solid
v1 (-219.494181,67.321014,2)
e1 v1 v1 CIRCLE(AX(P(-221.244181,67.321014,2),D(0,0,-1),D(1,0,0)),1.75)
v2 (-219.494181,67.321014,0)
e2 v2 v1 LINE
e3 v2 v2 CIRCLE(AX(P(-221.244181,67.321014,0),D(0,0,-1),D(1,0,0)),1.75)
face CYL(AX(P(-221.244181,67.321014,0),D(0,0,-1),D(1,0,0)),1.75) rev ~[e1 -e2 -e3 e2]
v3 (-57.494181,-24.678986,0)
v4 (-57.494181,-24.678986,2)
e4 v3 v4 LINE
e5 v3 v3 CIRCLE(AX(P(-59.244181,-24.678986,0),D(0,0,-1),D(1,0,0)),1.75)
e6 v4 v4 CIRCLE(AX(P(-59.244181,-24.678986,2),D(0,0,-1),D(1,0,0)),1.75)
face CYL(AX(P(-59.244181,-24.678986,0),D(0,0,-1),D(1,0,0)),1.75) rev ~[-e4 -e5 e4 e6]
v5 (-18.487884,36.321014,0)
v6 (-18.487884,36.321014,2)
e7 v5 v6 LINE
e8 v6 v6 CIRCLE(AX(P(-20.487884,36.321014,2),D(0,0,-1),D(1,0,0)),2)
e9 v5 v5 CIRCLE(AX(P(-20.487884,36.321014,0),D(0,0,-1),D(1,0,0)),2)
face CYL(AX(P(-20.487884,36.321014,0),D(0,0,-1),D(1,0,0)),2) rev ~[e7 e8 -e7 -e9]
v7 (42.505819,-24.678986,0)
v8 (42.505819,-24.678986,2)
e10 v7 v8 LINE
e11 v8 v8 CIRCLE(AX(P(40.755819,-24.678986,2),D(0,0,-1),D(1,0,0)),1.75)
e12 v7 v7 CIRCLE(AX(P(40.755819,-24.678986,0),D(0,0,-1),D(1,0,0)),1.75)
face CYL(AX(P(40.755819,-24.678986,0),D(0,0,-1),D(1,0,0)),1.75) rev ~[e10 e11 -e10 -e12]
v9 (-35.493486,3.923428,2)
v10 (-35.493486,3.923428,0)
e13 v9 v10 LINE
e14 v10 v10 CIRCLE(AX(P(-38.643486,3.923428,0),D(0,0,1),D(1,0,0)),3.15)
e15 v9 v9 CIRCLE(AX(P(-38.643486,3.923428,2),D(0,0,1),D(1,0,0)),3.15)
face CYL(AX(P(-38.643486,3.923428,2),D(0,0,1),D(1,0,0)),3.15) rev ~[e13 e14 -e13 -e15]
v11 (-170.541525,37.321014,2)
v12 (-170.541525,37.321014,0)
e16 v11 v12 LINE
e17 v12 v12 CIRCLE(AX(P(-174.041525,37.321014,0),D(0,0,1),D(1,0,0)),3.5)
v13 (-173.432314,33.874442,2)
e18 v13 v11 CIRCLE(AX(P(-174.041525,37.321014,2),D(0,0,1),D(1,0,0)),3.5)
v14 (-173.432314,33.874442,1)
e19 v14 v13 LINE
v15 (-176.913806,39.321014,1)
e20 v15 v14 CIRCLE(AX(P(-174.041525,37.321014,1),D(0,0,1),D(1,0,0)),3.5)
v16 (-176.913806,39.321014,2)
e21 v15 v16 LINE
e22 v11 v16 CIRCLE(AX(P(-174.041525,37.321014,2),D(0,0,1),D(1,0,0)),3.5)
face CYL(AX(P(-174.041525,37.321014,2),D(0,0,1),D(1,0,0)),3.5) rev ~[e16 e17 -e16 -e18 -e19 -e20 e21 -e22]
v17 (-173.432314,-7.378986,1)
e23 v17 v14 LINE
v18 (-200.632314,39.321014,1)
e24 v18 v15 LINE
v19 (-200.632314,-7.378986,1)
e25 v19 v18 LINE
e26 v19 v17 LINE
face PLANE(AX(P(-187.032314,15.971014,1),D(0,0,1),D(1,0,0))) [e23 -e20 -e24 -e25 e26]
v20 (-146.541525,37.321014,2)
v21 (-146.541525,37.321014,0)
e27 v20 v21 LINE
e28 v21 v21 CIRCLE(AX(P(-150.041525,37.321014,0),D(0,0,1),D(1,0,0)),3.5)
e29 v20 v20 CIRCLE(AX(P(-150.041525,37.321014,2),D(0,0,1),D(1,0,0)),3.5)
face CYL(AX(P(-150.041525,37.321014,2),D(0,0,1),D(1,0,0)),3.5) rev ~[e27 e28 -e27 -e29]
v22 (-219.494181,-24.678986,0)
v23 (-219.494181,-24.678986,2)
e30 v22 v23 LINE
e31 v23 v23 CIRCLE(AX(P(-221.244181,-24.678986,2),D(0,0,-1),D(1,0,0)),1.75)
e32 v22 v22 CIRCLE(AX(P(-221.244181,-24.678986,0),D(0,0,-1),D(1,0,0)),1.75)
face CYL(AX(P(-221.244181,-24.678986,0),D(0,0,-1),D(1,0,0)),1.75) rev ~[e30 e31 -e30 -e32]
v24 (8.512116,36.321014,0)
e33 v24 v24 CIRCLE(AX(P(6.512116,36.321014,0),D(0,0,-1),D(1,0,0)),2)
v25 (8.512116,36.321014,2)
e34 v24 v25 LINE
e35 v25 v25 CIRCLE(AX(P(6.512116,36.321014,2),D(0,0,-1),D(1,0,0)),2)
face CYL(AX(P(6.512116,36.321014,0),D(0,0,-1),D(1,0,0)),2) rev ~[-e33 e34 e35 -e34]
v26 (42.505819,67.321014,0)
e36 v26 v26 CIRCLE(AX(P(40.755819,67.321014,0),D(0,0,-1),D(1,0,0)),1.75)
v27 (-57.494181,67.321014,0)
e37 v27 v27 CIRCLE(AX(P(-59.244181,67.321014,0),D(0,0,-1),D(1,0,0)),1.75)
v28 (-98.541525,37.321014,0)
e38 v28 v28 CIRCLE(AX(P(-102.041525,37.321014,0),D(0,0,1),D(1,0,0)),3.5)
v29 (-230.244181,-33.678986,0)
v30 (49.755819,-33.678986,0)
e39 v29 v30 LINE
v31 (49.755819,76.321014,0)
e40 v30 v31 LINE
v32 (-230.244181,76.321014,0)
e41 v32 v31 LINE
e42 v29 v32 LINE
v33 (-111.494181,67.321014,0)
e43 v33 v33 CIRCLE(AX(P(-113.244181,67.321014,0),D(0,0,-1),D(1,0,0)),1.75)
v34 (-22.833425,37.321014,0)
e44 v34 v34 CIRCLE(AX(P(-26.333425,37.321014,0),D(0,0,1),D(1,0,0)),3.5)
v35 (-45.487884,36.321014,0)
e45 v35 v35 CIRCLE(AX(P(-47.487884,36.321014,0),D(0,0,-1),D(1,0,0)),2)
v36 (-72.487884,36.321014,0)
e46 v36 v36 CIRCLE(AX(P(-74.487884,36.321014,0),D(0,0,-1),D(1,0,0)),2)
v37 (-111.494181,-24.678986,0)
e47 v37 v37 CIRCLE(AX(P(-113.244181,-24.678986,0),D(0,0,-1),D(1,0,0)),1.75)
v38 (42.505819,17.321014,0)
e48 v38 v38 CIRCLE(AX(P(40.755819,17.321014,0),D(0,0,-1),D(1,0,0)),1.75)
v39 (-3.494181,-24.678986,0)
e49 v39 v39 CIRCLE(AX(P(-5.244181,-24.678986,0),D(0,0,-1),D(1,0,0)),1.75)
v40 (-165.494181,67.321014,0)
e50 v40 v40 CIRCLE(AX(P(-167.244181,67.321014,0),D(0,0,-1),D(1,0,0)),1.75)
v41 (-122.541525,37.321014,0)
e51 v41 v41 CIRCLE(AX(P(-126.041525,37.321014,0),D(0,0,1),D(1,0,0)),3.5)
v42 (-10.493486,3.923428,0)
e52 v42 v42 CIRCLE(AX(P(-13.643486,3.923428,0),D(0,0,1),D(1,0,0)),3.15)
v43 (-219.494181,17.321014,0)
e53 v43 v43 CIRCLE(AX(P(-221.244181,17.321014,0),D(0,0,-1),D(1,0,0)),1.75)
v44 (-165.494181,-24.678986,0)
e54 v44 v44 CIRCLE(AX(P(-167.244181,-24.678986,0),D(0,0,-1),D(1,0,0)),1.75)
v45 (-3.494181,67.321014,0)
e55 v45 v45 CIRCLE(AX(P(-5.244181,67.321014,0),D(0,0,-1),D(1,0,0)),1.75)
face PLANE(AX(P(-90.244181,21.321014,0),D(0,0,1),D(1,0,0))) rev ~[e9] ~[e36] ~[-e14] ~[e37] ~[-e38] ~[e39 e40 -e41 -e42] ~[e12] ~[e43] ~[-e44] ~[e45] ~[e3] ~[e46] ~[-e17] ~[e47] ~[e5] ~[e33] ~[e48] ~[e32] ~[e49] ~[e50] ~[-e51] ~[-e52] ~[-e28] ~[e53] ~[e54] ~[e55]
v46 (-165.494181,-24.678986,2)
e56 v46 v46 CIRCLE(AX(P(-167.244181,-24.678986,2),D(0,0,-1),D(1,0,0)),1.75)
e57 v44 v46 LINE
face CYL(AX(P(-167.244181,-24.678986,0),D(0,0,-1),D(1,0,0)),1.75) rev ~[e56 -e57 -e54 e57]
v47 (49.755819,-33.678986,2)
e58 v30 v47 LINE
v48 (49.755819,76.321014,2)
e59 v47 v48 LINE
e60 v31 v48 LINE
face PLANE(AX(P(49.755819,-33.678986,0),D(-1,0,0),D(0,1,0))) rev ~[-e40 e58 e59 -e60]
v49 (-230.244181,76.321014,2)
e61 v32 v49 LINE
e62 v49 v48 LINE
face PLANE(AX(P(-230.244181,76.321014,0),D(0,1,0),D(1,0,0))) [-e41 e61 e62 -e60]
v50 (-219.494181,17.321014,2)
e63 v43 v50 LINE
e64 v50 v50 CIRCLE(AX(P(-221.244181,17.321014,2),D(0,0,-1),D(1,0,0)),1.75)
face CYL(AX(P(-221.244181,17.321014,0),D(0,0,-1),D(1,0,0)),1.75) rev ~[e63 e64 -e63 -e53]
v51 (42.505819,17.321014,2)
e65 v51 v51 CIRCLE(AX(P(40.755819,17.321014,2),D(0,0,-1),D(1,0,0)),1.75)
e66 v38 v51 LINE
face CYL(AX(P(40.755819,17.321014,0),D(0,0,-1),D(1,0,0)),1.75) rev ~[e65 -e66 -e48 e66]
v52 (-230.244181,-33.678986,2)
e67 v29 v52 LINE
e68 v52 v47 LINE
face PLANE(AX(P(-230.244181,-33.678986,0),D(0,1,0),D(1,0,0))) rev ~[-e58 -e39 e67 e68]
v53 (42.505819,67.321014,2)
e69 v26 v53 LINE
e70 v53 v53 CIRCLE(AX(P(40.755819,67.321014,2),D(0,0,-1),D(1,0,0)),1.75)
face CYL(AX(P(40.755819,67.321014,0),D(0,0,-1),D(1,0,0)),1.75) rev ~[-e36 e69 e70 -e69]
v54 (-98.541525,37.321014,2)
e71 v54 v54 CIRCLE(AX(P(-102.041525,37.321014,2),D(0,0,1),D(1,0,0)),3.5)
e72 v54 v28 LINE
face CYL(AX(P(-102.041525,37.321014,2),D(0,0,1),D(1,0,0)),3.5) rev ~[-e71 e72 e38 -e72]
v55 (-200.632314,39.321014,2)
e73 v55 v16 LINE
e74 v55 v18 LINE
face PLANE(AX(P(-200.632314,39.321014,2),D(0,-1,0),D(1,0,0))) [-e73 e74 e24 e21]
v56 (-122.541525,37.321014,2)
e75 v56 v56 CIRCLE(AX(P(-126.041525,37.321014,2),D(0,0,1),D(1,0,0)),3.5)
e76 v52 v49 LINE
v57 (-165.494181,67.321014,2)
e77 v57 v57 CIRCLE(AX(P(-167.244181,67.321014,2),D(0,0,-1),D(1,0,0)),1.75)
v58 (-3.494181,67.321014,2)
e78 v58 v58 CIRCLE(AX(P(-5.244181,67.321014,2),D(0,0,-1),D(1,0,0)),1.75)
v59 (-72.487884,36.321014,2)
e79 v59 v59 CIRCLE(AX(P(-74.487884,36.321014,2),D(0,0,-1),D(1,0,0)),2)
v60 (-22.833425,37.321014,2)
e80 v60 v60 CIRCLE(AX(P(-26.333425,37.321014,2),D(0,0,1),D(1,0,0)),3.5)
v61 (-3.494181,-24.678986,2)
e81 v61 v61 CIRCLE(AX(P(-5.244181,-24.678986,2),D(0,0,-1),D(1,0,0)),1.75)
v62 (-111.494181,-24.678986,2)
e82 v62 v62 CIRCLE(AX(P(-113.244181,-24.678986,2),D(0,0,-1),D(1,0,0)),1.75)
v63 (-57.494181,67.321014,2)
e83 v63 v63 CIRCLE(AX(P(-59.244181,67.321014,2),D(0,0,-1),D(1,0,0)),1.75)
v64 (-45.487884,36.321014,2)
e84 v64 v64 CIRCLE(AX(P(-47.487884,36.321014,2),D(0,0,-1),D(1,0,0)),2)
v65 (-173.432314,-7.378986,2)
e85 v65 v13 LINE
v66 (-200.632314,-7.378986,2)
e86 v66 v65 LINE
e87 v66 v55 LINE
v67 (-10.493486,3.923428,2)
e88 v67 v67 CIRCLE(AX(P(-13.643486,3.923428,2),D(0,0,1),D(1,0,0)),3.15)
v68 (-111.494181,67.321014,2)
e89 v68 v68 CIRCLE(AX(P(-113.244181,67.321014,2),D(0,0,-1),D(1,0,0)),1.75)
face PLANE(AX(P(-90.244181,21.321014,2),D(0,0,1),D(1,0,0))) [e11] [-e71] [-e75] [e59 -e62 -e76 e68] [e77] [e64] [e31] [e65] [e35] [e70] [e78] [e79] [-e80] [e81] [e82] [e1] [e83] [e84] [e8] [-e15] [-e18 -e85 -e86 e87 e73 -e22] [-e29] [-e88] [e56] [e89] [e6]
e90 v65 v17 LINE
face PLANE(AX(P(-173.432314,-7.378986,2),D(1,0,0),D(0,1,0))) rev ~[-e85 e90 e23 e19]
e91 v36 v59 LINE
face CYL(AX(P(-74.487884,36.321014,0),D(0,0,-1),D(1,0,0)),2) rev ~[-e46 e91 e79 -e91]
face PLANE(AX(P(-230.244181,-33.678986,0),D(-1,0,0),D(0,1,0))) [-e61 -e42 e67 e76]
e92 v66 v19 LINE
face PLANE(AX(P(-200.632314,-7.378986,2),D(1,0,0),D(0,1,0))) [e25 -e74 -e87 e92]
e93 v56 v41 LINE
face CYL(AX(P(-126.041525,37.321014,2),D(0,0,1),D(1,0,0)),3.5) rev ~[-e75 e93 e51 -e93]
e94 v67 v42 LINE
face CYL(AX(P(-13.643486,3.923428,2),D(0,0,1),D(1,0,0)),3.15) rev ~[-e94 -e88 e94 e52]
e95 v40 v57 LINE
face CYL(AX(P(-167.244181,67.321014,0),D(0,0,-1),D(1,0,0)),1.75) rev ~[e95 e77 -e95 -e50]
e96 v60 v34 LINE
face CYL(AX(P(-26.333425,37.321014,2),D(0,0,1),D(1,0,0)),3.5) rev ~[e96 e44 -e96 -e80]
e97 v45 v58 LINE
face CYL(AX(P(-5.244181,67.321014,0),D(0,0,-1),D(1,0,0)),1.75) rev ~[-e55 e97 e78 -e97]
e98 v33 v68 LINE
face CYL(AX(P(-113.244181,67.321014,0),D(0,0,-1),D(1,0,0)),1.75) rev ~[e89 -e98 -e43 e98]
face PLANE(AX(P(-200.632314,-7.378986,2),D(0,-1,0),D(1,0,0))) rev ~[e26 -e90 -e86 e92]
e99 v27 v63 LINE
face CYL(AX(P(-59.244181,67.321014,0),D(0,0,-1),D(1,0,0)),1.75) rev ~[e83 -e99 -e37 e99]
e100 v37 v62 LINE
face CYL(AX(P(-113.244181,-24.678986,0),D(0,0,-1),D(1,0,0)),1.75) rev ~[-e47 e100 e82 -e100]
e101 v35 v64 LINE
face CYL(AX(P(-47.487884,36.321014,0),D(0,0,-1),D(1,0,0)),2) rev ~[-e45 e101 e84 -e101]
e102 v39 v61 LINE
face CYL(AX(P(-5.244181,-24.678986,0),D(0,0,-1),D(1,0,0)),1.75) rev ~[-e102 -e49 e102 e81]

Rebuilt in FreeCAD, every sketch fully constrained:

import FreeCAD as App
import Part
import Sketcher
from FreeCAD import Vector
Q = App.Units.Quantity


def add_polygon(sketch, points):
    """Adds a closed chain of lines whose ends are joined by coincident constraints."""
    first, n = sketch.GeometryCount, len(points)
    for a, b in zip(points, points[1:] + points[:1]):
        sketch.addGeometry(Part.LineSegment(App.Vector(*a, 0), App.Vector(*b, 0)), False)
    for i in range(n):
        sketch.addConstraint(Sketcher.Constraint("Coincident", first + i, 2, first + (i + 1) % n, 1))

doc = App.newDocument("Part")
body = doc.addObject("PartDesign::Body", "Body")

# Sketch on XY plane
sketch1 = body.newObject("Sketcher::SketchObject", "Sketch")
sketch1.AttachmentSupport = (doc.getObject("XY_Plane"), [""])
sketch1.MapMode = "FlatFace"
add_polygon(sketch1, [(-230, 76), (-230, -34), (50, -34), (50, 76)])  # lines 0-3
sketch1.addConstraint([
    Sketcher.Constraint("Vertical", 0),
    Sketcher.Constraint("Horizontal", 1),
    Sketcher.Constraint("Vertical", 2),
    Sketcher.Constraint("Horizontal", 3),
    Sketcher.Constraint("DistanceX", 1, 1, 1, 2, Q("280 mm")),
    Sketcher.Constraint("DistanceY", 0, 2, 0, 1, Q("110 mm")),
    Sketcher.Constraint("DistanceX", 0, 2, -1, 1, Q("230.244181 mm")),
    Sketcher.Constraint("DistanceY", 0, 2, -1, 1, Q("33.678986 mm")),
])
pad1 = body.newObject("PartDesign::Pad", "Pad")
pad1.Profile = sketch1
pad1.Length = 2

# Sketch on XY plane
sketch2 = body.newObject("Sketcher::SketchObject", "Sketch001")
sketch2.AttachmentSupport = (doc.getObject("XY_Plane"), [""])
sketch2.MapMode = "FlatFace"
sketch2.AttachmentOffset = App.Placement(Vector(0, 0, 2), App.Rotation())
sketch2.addGeometry([
    Part.Circle(Vector(-174, 37.3, 0), Vector(0, 0, 1), 3.5),  # 0
    Part.Circle(Vector(-150, 37.3, 0), Vector(0, 0, 1), 3.5),  # 1
    Part.Circle(Vector(-126, 37.3, 0), Vector(0, 0, 1), 3.5),  # 2
    Part.Circle(Vector(-102, 37.3, 0), Vector(0, 0, 1), 3.5),  # 3
    Part.Circle(Vector(-26.3, 37.3, 0), Vector(0, 0, 1), 3.5),  # 4
    Part.Circle(Vector(-13.6, 3.9, 0), Vector(0, 0, 1), 3.1),  # 5
    Part.Circle(Vector(-38.6, 3.9, 0), Vector(0, 0, 1), 3.1),  # 6
], False)
sketch2.addConstraint([
    Sketcher.Constraint("Equal", 0, 1),
    Sketcher.Constraint("Equal", 1, 2),
    Sketcher.Constraint("Equal", 2, 3),
    Sketcher.Constraint("Equal", 3, 4),
    Sketcher.Constraint("Equal", 5, 6),
    Sketcher.Constraint("Horizontal", 0, 3, 1, 3),
    Sketcher.Constraint("Horizontal", 1, 3, 2, 3),
    Sketcher.Constraint("Horizontal", 2, 3, 3, 3),
    Sketcher.Constraint("Horizontal", 3, 3, 4, 3),
    Sketcher.Constraint("Horizontal", 5, 3, 6, 3),
    Sketcher.Constraint("Diameter", 0, Q("7 mm")),
    Sketcher.Constraint("Diameter", 5, Q("6.3 mm")),
    Sketcher.Constraint("DistanceX", 0, 3, 1, 3, Q("24 mm")),
    Sketcher.Constraint("DistanceX", 1, 3, 2, 3, Q("24 mm")),
    Sketcher.Constraint("DistanceX", 2, 3, 3, 3, Q("24 mm")),
    Sketcher.Constraint("DistanceX", 6, 3, 5, 3, Q("25 mm")),
    Sketcher.Constraint("DistanceX", 3, 3, 4, 3, Q("75.7081 mm")),
    Sketcher.Constraint("DistanceX", 4, 3, 5, 3, Q("12.689939 mm")),
    Sketcher.Constraint("DistanceX", 0, 3, -1, 1, Q("174.041525 mm")),
    Sketcher.Constraint("DistanceY", -1, 1, 0, 3, Q("37.321014 mm")),
    Sketcher.Constraint("DistanceY", -1, 1, 5, 3, Q("3.923428 mm")),
])
pocket1 = body.newObject("PartDesign::Pocket", "Pocket")
pocket1.Profile = sketch2
pocket1.Length = 25

# Sketch on XY plane
sketch3 = body.newObject("Sketcher::SketchObject", "Sketch002")
sketch3.AttachmentSupport = (doc.getObject("XY_Plane"), [""])
sketch3.MapMode = "FlatFace"
sketch3.addGeometry([
    Part.Circle(Vector(6.5, 36.3, 0), Vector(0, 0, 1), 2),  # 0
    Part.Circle(Vector(-20.5, 36.3, 0), Vector(0, 0, 1), 2),  # 1
    Part.Circle(Vector(-47.5, 36.3, 0), Vector(0, 0, 1), 2),  # 2
    Part.Circle(Vector(-74.5, 36.3, 0), Vector(0, 0, 1), 2),  # 3
    Part.Circle(Vector(-221.2, -24.7, 0), Vector(0, 0, 1), 1.8),  # 4
    Part.Circle(Vector(-221.2, 67.3, 0), Vector(0, 0, 1), 1.8),  # 5
    Part.Circle(Vector(40.8, -24.7, 0), Vector(0, 0, 1), 1.8),  # 6
    Part.Circle(Vector(40.8, 67.3, 0), Vector(0, 0, 1), 1.8),  # 7
    Part.Circle(Vector(-167.2, -24.7, 0), Vector(0, 0, 1), 1.8),  # 8
    Part.Circle(Vector(-167.2, 67.3, 0), Vector(0, 0, 1), 1.8),  # 9
    Part.Circle(Vector(-113.2, -24.7, 0), Vector(0, 0, 1), 1.8),  # 10
    Part.Circle(Vector(-113.2, 67.3, 0), Vector(0, 0, 1), 1.8),  # 11
    Part.Circle(Vector(-59.2, -24.7, 0), Vector(0, 0, 1), 1.8),  # 12
    Part.Circle(Vector(-59.2, 67.3, 0), Vector(0, 0, 1), 1.8),  # 13
    Part.Circle(Vector(-5.2, -24.7, 0), Vector(0, 0, 1), 1.8),  # 14
    Part.Circle(Vector(-5.2, 67.3, 0), Vector(0, 0, 1), 1.8),  # 15
    Part.Circle(Vector(-221.2, 17.3, 0), Vector(0, 0, 1), 1.8),  # 16
    Part.Circle(Vector(40.8, 17.3, 0), Vector(0, 0, 1), 1.8),  # 17
], False)
sketch3.addConstraint([
    Sketcher.Constraint("Equal", 0, 1),
    Sketcher.Constraint("Equal", 1, 2),
    Sketcher.Constraint("Equal", 2, 3),
    Sketcher.Constraint("Equal", 4, 5),
    Sketcher.Constraint("Equal", 5, 6),
    Sketcher.Constraint("Equal", 6, 7),
    Sketcher.Constraint("Equal", 7, 8),
    Sketcher.Constraint("Equal", 8, 9),
    Sketcher.Constraint("Equal", 9, 10),
    Sketcher.Constraint("Equal", 10, 11),
    Sketcher.Constraint("Equal", 11, 12),
    Sketcher.Constraint("Equal", 12, 13),
    Sketcher.Constraint("Equal", 13, 14),
    Sketcher.Constraint("Equal", 14, 15),
    Sketcher.Constraint("Equal", 15, 16),
    Sketcher.Constraint("Equal", 16, 17),
    Sketcher.Constraint("Horizontal", 0, 3, 1, 3),
    Sketcher.Constraint("Horizontal", 1, 3, 2, 3),
    Sketcher.Constraint("Horizontal", 2, 3, 3, 3),
    Sketcher.Constraint("Horizontal", 4, 3, 6, 3),
    Sketcher.Constraint("Horizontal", 5, 3, 7, 3),
    Sketcher.Constraint("Horizontal", 6, 3, 8, 3),
    Sketcher.Constraint("Horizontal", 7, 3, 9, 3),
    Sketcher.Constraint("Horizontal", 8, 3, 10, 3),
    Sketcher.Constraint("Horizontal", 9, 3, 11, 3),
    Sketcher.Constraint("Horizontal", 10, 3, 12, 3),
    Sketcher.Constraint("Horizontal", 11, 3, 13, 3),
    Sketcher.Constraint("Horizontal", 12, 3, 14, 3),
    Sketcher.Constraint("Horizontal", 13, 3, 15, 3),
    Sketcher.Constraint("Horizontal", 16, 3, 17, 3),
    Sketcher.Constraint("Vertical", 4, 3, 5, 3),
    Sketcher.Constraint("Vertical", 6, 3, 7, 3),
    Sketcher.Constraint("Vertical", 8, 3, 9, 3),
    Sketcher.Constraint("Vertical", 10, 3, 11, 3),
    Sketcher.Constraint("Vertical", 12, 3, 13, 3),
    Sketcher.Constraint("Vertical", 14, 3, 15, 3),
    Sketcher.Constraint("Vertical", 5, 3, 16, 3),
    Sketcher.Constraint("Vertical", 7, 3, 17, 3),
    Sketcher.Constraint("Diameter", 0, Q("4 mm")),
    Sketcher.Constraint("Diameter", 4, Q("3.5 mm")),
    Sketcher.Constraint("DistanceX", 1, 3, 0, 3, Q("27 mm")),
    Sketcher.Constraint("DistanceX", 2, 3, 1, 3, Q("27 mm")),
    Sketcher.Constraint("DistanceX", 3, 3, 2, 3, Q("27 mm")),
    Sketcher.Constraint("DistanceY", 4, 3, 3, 3, Q("61 mm")),
    Sketcher.Constraint("DistanceY", 4, 3, 5, 3, Q("92 mm")),
    Sketcher.Constraint("DistanceX", 4, 3, 6, 3, Q("262 mm")),
    Sketcher.Constraint("DistanceX", 4, 3, 8, 3, Q("54 mm")),
    Sketcher.Constraint("DistanceX", 8, 3, 10, 3, Q("54 mm")),
    Sketcher.Constraint("DistanceX", 10, 3, 12, 3, Q("54 mm")),
    Sketcher.Constraint("DistanceX", 14, 3, 6, 3, Q("46 mm")),
    Sketcher.Constraint("DistanceY", 4, 3, 16, 3, Q("42 mm")),
    Sketcher.Constraint("DistanceX", 4, 3, -1, 1, Q("221.244181 mm")),
    Sketcher.Constraint("DistanceX", -1, 1, 0, 3, Q("6.512116 mm")),
    Sketcher.Constraint("DistanceY", -1, 1, 0, 3, Q("36.321014 mm")),
])
pocket2 = body.newObject("PartDesign::Pocket", "Pocket001")
pocket2.Profile = sketch3
pocket2.Length = 25
pocket2.Reversed = True

# Sketch on XY plane
sketch4 = body.newObject("Sketcher::SketchObject", "Sketch003")
sketch4.AttachmentSupport = (doc.getObject("XY_Plane"), [""])
sketch4.MapMode = "FlatFace"
sketch4.AttachmentOffset = App.Placement(Vector(0, 0, 2), App.Rotation())
add_polygon(sketch4, [(-201, 39), (-201, -7), (-173, -7), (-173, 39)])  # lines 0-3
sketch4.addConstraint([
    Sketcher.Constraint("Vertical", 0),
    Sketcher.Constraint("Horizontal", 1),
    Sketcher.Constraint("Vertical", 2),
    Sketcher.Constraint("Horizontal", 3),
    Sketcher.Constraint("DistanceX", 1, 1, 1, 2, Q("27.2 mm")),
    Sketcher.Constraint("DistanceY", 0, 2, 0, 1, Q("46.7 mm")),
    Sketcher.Constraint("DistanceX", 0, 2, -1, 1, Q("200.632314 mm")),
    Sketcher.Constraint("DistanceY", 0, 2, -1, 1, Q("7.378986 mm")),
])
pocket3 = body.newObject("PartDesign::Pocket", "Pocket002")
pocket3.Profile = sketch4
pocket3.Length = 1

doc.recompute()
